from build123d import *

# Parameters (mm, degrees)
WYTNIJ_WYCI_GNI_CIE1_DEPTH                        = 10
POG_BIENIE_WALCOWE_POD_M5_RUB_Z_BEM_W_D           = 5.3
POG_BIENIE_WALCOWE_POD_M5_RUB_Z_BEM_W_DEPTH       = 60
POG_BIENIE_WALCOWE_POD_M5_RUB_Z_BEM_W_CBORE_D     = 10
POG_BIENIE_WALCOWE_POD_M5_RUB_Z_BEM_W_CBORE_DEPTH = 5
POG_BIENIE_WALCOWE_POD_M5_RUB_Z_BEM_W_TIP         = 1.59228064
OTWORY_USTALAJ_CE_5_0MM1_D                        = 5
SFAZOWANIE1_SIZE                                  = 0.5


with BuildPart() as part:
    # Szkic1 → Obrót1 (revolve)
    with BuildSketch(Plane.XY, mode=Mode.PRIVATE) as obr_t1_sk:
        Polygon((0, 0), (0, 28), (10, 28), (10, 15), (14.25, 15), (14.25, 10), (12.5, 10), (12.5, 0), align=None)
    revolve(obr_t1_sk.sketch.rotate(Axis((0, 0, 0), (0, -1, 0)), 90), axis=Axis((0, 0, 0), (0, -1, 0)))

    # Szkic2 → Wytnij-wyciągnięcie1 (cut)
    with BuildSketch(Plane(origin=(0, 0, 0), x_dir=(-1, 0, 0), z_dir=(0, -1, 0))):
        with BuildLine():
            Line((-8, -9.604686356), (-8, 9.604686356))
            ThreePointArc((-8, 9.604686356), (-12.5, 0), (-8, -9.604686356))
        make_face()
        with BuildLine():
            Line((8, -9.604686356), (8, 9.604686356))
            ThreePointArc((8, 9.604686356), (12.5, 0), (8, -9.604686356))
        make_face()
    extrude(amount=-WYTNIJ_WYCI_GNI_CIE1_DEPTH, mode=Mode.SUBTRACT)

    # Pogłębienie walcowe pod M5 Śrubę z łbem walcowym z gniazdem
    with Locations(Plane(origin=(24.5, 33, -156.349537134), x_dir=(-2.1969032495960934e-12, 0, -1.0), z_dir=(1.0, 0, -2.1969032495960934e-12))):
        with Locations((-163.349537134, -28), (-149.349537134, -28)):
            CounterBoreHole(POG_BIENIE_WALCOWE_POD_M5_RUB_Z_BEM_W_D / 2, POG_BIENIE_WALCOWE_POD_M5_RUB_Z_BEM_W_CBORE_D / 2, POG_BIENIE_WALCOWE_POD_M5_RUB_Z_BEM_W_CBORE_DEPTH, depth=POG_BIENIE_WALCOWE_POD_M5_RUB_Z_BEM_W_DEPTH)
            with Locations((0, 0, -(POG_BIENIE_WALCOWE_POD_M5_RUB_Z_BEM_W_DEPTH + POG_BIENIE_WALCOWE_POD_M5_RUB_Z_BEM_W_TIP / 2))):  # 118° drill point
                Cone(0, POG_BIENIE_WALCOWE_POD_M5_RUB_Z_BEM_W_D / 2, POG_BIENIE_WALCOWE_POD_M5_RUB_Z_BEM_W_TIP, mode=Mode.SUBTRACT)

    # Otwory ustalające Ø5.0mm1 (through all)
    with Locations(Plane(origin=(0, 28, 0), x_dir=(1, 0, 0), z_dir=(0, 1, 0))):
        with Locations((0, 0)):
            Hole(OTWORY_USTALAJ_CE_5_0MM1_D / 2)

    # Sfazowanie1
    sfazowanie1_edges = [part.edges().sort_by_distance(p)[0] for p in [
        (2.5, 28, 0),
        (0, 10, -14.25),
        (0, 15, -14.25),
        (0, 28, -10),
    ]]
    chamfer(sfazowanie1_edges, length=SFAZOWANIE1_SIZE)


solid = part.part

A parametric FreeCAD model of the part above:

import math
import FreeCAD as App
import Part
import Sketcher
from FreeCAD import Vector
Q = App.Units.Quantity


def edges_at(feature, points):
    """Names of the edges that pass closest to the given points."""
    edges = feature.Shape.Edges
    near = lambda p: min(range(len(edges)), key=lambda i: edges[i].distToShape(Part.Vertex(*p))[0])
    return sorted({f"Edge{near(p) + 1}" for p in points})

doc = App.newDocument("Part")
body = doc.addObject("PartDesign::Body", "Body")

sketch1 = body.newObject("Sketcher::SketchObject", "Sketch")
sketch1.AttachmentSupport = (doc.getObject("XY_Plane"), [""])
sketch1.MapMode = "FlatFace"
sketch1.addGeometry(Part.LineSegment(Vector(0, 28, 0), Vector(0, 0, 0)), False)
sketch1.addGeometry(Part.LineSegment(Vector(0, 0, 0), Vector(12.5, 0, 0)), False)
sketch1.addGeometry(Part.LineSegment(Vector(12.5, 0, 0), Vector(12.5, 10, 0)), False)
sketch1.addGeometry(Part.LineSegment(Vector(12.5, 10, 0), Vector(14.2, 10, 0)), False)
sketch1.addGeometry(Part.LineSegment(Vector(14.2, 10, 0), Vector(14.2, 15, 0)), False)
sketch1.addGeometry(Part.LineSegment(Vector(14.2, 15, 0), Vector(10, 15, 0)), False)
sketch1.addGeometry(Part.LineSegment(Vector(10, 15, 0), Vector(10, 28, 0)), False)
sketch1.addGeometry(Part.LineSegment(Vector(10, 28, 0), Vector(0, 28, 0)), False)
sketch1.addConstraint(Sketcher.Constraint("Coincident", 0, 2, 1, 1))
sketch1.addConstraint(Sketcher.Constraint("Coincident", 1, 2, 2, 1))
sketch1.addConstraint(Sketcher.Constraint("Coincident", 2, 2, 3, 1))
sketch1.addConstraint(Sketcher.Constraint("Coincident", 3, 2, 4, 1))
sketch1.addConstraint(Sketcher.Constraint("Coincident", 4, 2, 5, 1))
sketch1.addConstraint(Sketcher.Constraint("Coincident", 5, 2, 6, 1))
sketch1.addConstraint(Sketcher.Constraint("Coincident", 6, 2, 7, 1))
sketch1.addConstraint(Sketcher.Constraint("Coincident", 7, 2, 0, 1))
sketch1.addConstraint(Sketcher.Constraint("Vertical", 0))
sketch1.addConstraint(Sketcher.Constraint("Horizontal", 1))
sketch1.addConstraint(Sketcher.Constraint("Vertical", 2))
sketch1.addConstraint(Sketcher.Constraint("Horizontal", 3))
sketch1.addConstraint(Sketcher.Constraint("Vertical", 4))
sketch1.addConstraint(Sketcher.Constraint("Horizontal", 5))
sketch1.addConstraint(Sketcher.Constraint("Vertical", 6))
sketch1.addConstraint(Sketcher.Constraint("Horizontal", 7))
sketch1.addConstraint(Sketcher.Constraint("Coincident", 0, 2, -1, 1))
sketch1.addConstraint(Sketcher.Constraint("Equal", 7, 2))
sketch1.addConstraint(Sketcher.Constraint("DistanceX", 7, 2, 7, 1, Q("10 mm")))
sketch1.addConstraint(Sketcher.Constraint("DistanceY", 0, 2, 0, 1, Q("28 mm")))
sketch1.addConstraint(Sketcher.Constraint("DistanceY", 4, 1, 4, 2, Q("5 mm")))
sketch1.addConstraint(Sketcher.Constraint("DistanceX", 1, 1, 1, 2, Q("12.5 mm")))
sketch1.addConstraint(Sketcher.Constraint("DistanceX", 3, 1, 3, 2, Q("1.75 mm")))
revolution = body.newObject("PartDesign::Revolution", "Revolution")
revolution.Profile = sketch1
revolution.ReferenceAxis = (sketch1, ["V_Axis"])
revolution.Angle = 360

sketch2 = body.newObject("Sketcher::SketchObject", "Sketch001")
sketch2.AttachmentSupport = (doc.getObject("XZ_Plane"), [""])
sketch2.MapMode = "FlatFace"
sketch2.addGeometry(Part.LineSegment(Vector(8, 10, 0), Vector(8, -10, 0)), False)
sketch2.addGeometry(Part.ArcOfCircle(Part.Circle(Vector(0, 0, 0), Vector(0, 0, 1), 12), math.radians(-50), math.radians(50)), False)
sketch2.addGeometry(Part.LineSegment(Vector(-8, -10, 0), Vector(-8, 10, 0)), False)
sketch2.addGeometry(Part.ArcOfCircle(Part.Circle(Vector(0, 0, 0), Vector(0, 0, 1), 12), math.radians(130), math.radians(230)), False)
sketch2.addConstraint(Sketcher.Constraint("Coincident", 0, 1, 1, 2))
sketch2.addConstraint(Sketcher.Constraint("Coincident", 1, 1, 0, 2))
sketch2.addConstraint(Sketcher.Constraint("Coincident", 2, 1, 3, 2))
sketch2.addConstraint(Sketcher.Constraint("Coincident", 3, 1, 2, 2))
sketch2.addConstraint(Sketcher.Constraint("Vertical", 0))
sketch2.addConstraint(Sketcher.Constraint("Vertical", 2))
sketch2.addConstraint(Sketcher.Constraint("Coincident", 1, 3, -1, 1))
sketch2.addConstraint(Sketcher.Constraint("Coincident", 3, 3, -1, 1))
sketch2.addConstraint(Sketcher.Constraint("Equal", 1, 3))
sketch2.addConstraint(Sketcher.Constraint("Horizontal", 1, 1, 2, 1))
sketch2.addConstraint(Sketcher.Constraint("Radius", 1, Q("12.5 mm")))
sketch2.addConstraint(Sketcher.Constraint("DistanceX", -1, 1, 0, 1, Q("8 mm")))
pocket1 = body.newObject("PartDesign::Pocket", "Pocket")
pocket1.Profile = sketch2
pocket1.Length = 10

sketch3 = body.newObject("Sketcher::SketchObject", "Sketch002")
sketch3.AttachmentSupport = (doc.getObject("YZ_Plane"), [""])
sketch3.MapMode = "FlatFace"
sketch3.AttachmentOffset = App.Placement(Vector(0, 0, 24.5), App.Rotation())
sketch3.addGeometry(Part.Circle(Vector(5, 7, 0), Vector(0, 0, 1), 2.6), False)
sketch3.addGeometry(Part.Circle(Vector(5, -7, 0), Vector(0, 0, 1), 2.6), False)
sketch3.addConstraint(Sketcher.Constraint("Equal", 0, 1))
sketch3.addConstraint(Sketcher.Constraint("Symmetric", 0, 3, 1, 3, -1))
sketch3.addConstraint(Sketcher.Constraint("Diameter", 0, Q("5.3 mm")))
sketch3.addConstraint(Sketcher.Constraint("DistanceX", -1, 1, 0, 3, Q("5 mm")))
sketch3.addConstraint(Sketcher.Constraint("DistanceY", -1, 1, 0, 3, Q("7 mm")))
doc.recompute()
hole = body.newObject("PartDesign::Hole", "Hole")
hole.Profile = sketch3
hole.ThreadType = "None"
hole.Diameter = 5.3
hole.DepthType = "Dimension"
hole.Depth = 60
hole.DrillPoint = "Angled"
hole.DrillPointAngle = 118
hole.HoleCutType = "Counterbore"
hole.HoleCutDiameter = 10
hole.HoleCutDepth = 5

sketch4 = body.newObject("Sketcher::SketchObject", "Sketch003")
sketch4.AttachmentSupport = (doc.getObject("XZ_Plane"), [""])
sketch4.MapMode = "FlatFace"
sketch4.AttachmentOffset = App.Placement(Vector(0, 0, -28), App.Rotation())
sketch4.addGeometry(Part.Circle(Vector(0, 0, 0), Vector(0, 0, 1), 2.5), False)
sketch4.addConstraint(Sketcher.Constraint("Coincident", 0, 3, -1, 1))
sketch4.addConstraint(Sketcher.Constraint("Diameter", 0, Q("5 mm")))
doc.recompute()
hole2 = body.newObject("PartDesign::Hole", "Hole001")
hole2.Profile = sketch4
hole2.ThreadType = "None"
hole2.Diameter = 5
hole2.DepthType = "ThroughAll"
hole2.Reversed = True
doc.recompute()

chamfer = body.newObject("PartDesign::Chamfer", "Chamfer")
chamfer.Base = (hole2, edges_at(hole2, [
    (2.5, 28, 0),
    (0, 10, -14.25),
    (0, 15, -14.25),
    (0, 28, -10),
]))
chamfer.Size = 0.5

doc.recompute()
